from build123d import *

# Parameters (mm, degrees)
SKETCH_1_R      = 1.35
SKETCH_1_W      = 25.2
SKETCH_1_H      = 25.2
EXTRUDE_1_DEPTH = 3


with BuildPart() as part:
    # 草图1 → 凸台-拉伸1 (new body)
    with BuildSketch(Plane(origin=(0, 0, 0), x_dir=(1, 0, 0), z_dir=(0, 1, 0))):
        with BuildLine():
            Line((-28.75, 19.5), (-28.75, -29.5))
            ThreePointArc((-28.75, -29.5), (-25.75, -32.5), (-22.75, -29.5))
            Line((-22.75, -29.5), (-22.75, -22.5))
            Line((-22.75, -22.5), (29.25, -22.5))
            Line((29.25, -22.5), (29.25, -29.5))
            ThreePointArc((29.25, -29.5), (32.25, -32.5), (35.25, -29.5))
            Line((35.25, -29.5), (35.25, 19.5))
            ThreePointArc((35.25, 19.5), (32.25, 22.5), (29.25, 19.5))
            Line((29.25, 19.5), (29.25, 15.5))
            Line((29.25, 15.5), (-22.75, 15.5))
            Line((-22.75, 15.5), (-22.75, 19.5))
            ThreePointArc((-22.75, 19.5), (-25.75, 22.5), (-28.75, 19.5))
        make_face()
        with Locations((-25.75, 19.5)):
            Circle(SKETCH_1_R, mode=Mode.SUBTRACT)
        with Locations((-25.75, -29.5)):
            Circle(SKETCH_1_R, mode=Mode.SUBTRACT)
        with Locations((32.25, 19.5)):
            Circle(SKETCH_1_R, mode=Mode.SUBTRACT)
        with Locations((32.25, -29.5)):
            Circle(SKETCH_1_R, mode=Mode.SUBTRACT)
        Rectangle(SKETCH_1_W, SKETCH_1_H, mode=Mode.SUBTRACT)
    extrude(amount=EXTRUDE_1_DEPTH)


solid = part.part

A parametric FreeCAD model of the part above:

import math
import FreeCAD as App
import Part
import Sketcher

V = App.Vector


def add_polygon(sketch, points):
    """Adds a closed chain of lines whose ends are joined by coincident constraints."""
    first, n = sketch.GeometryCount, len(points)
    for a, b in zip(points, points[1:] + points[:1]):
        sketch.addGeometry(Part.LineSegment(App.Vector(*a, 0), App.Vector(*b, 0)), False)
    for i in range(n):
        sketch.addConstraint(Sketcher.Constraint("Coincident", first + i, 2, first + (i + 1) % n, 1))

doc = App.newDocument("Part")
body = doc.addObject("PartDesign::Body", "Body")

# Sketch on XZ plane
sketch1 = doc.addObject("Sketcher::SketchObject", "Sketch")
body.addObject(sketch1)
sketch1.AttachmentSupport = (doc.XZ_Plane, [""])
sketch1.MapMode = "FlatFace"
sketch1.addGeometry(Part.LineSegment(V(-28.8, -19.5, 0), V(-28.8, 29.5, 0)), False)  # 0
sketch1.addGeometry(Part.ArcOfCircle(Part.Circle(V(-25.8, 29.5, 0), V(0, 0, 1), 3), math.radians(0), math.radians(180)), False)  # 1
sketch1.addGeometry(Part.LineSegment(V(-22.8, 29.5, 0), V(-22.8, 22.5, 0)), False)  # 2
sketch1.addGeometry(Part.LineSegment(V(-22.8, 22.5, 0), V(29.2, 22.5, 0)), False)  # 3
sketch1.addGeometry(Part.LineSegment(V(29.2, 22.5, 0), V(29.2, 29.5, 0)), False)  # 4
sketch1.addGeometry(Part.ArcOfCircle(Part.Circle(V(32.2, 29.5, 0), V(0, 0, 1), 3), math.radians(0), math.radians(180)), False)  # 5
sketch1.addGeometry(Part.LineSegment(V(35.2, 29.5, 0), V(35.2, -19.5, 0)), False)  # 6
sketch1.addGeometry(Part.ArcOfCircle(Part.Circle(V(32.2, -19.5, 0), V(0, 0, 1), 3), math.radians(180), math.radians(360)), False)  # 7
sketch1.addGeometry(Part.LineSegment(V(29.2, -19.5, 0), V(29.2, -15.5, 0)), False)  # 8
sketch1.addGeometry(Part.LineSegment(V(29.2, -15.5, 0), V(-22.8, -15.5, 0)), False)  # 9
sketch1.addGeometry(Part.LineSegment(V(-22.8, -15.5, 0), V(-22.8, -19.5, 0)), False)  # 10
sketch1.addGeometry(Part.ArcOfCircle(Part.Circle(V(-25.8, -19.5, 0), V(0, 0, 1), 3), math.radians(180), math.radians(360)), False)  # 11
sketch1.addGeometry(Part.Circle(V(-25.8, 29.5, 0), V(0, 0, 1), 1.4), False)  # 12
sketch1.addGeometry(Part.Circle(V(32.2, 29.5, 0), V(0, 0, 1), 1.4), False)  # 13
add_polygon(sketch1, [(12.6, 12.6), (-12.6, 12.6), (-12.6, -12.6), (12.6, -12.6)])  # lines 14-17
sketch1.addGeometry(Part.Circle(V(-25.8, -19.5, 0), V(0, 0, 1), 1.4), False)  # 18
sketch1.addGeometry(Part.Circle(V(32.2, -19.5, 0), V(0, 0, 1), 1.4), False)  # 19
sketch1.addConstraint([
    Sketcher.Constraint("Tangent", 0, 2, 1, 2),
    Sketcher.Constraint("Tangent", 1, 1, 2, 1),
    Sketcher.Constraint("Coincident", 2, 2, 3, 1),
    Sketcher.Constraint("Coincident", 3, 2, 4, 1),
    Sketcher.Constraint("Tangent", 4, 2, 5, 2),
    Sketcher.Constraint("Tangent", 5, 1, 6, 1),
    Sketcher.Constraint("Tangent", 6, 2, 7, 2),
    Sketcher.Constraint("Tangent", 7, 1, 8, 1),
    Sketcher.Constraint("Coincident", 8, 2, 9, 1),
    Sketcher.Constraint("Coincident", 9, 2, 10, 1),
    Sketcher.Constraint("Tangent", 10, 2, 11, 2),
    Sketcher.Constraint("Tangent", 11, 1, 0, 1),
    Sketcher.Constraint("Vertical", 0),
    Sketcher.Constraint("Vertical", 2),
    Sketcher.Constraint("Horizontal", 3),
    Sketcher.Constraint("Vertical", 4),
    Sketcher.Constraint("Vertical", 6),
    Sketcher.Constraint("Vertical", 8),
    Sketcher.Constraint("Horizontal", 9),
    Sketcher.Constraint("Vertical", 10),
    Sketcher.Constraint("Horizontal", 14),
    Sketcher.Constraint("Vertical", 15),
    Sketcher.Constraint("Horizontal", 16),
    Sketcher.Constraint("Vertical", 17),
    Sketcher.Constraint("Coincident", 12, 3, 1, 3),
    Sketcher.Constraint("Coincident", 13, 3, 5, 3),
    Sketcher.Constraint("Coincident", 18, 3, 11, 3),
    Sketcher.Constraint("Coincident", 19, 3, 7, 3),
    Sketcher.Constraint("Equal", 1, 5),
    Sketcher.Constraint("Equal", 5, 7),
    Sketcher.Constraint("Equal", 7, 11),
    Sketcher.Constraint("Equal", 12, 13),
    Sketcher.Constraint("Equal", 13, 18),
    Sketcher.Constraint("Equal", 18, 19),
    Sketcher.Constraint("Symmetric", 14, 2, 16, 2, -1, 1),
    Sketcher.Constraint("Horizontal", 1, 3, 5, 3),
    Sketcher.Constraint("Horizontal", 7, 3, 11, 3),
    Sketcher.Constraint("Equal", 16, 15),
    Sketcher.Constraint("Radius", 1, 3.0),
    Sketcher.Constraint("Diameter", 12, 2.7),
    Sketcher.Constraint("DistanceX", 3, 1, 3, 2, 52.0),
    Sketcher.Constraint("DistanceY", 0, 1, 0, 2, 49.0),
    Sketcher.Constraint("DistanceY", 2, 2, 2, 1, 7.0),
    Sketcher.Constraint("DistanceY", 8, 1, 8, 2, 4.0),
    Sketcher.Constraint("DistanceX", 14, 2, 14, 1, 25.2),
    Sketcher.Constraint("DistanceY", -1, 1, 1, 3, 29.5),
    Sketcher.Constraint("DistanceX", 1, 3, -1, 1, 25.75),
])
pad1 = doc.addObject("PartDesign::Pad", "Pad")
body.addObject(pad1)
pad1.Profile = sketch1
pad1.Length = 3
pad1.Reversed = True

doc.recompute()
